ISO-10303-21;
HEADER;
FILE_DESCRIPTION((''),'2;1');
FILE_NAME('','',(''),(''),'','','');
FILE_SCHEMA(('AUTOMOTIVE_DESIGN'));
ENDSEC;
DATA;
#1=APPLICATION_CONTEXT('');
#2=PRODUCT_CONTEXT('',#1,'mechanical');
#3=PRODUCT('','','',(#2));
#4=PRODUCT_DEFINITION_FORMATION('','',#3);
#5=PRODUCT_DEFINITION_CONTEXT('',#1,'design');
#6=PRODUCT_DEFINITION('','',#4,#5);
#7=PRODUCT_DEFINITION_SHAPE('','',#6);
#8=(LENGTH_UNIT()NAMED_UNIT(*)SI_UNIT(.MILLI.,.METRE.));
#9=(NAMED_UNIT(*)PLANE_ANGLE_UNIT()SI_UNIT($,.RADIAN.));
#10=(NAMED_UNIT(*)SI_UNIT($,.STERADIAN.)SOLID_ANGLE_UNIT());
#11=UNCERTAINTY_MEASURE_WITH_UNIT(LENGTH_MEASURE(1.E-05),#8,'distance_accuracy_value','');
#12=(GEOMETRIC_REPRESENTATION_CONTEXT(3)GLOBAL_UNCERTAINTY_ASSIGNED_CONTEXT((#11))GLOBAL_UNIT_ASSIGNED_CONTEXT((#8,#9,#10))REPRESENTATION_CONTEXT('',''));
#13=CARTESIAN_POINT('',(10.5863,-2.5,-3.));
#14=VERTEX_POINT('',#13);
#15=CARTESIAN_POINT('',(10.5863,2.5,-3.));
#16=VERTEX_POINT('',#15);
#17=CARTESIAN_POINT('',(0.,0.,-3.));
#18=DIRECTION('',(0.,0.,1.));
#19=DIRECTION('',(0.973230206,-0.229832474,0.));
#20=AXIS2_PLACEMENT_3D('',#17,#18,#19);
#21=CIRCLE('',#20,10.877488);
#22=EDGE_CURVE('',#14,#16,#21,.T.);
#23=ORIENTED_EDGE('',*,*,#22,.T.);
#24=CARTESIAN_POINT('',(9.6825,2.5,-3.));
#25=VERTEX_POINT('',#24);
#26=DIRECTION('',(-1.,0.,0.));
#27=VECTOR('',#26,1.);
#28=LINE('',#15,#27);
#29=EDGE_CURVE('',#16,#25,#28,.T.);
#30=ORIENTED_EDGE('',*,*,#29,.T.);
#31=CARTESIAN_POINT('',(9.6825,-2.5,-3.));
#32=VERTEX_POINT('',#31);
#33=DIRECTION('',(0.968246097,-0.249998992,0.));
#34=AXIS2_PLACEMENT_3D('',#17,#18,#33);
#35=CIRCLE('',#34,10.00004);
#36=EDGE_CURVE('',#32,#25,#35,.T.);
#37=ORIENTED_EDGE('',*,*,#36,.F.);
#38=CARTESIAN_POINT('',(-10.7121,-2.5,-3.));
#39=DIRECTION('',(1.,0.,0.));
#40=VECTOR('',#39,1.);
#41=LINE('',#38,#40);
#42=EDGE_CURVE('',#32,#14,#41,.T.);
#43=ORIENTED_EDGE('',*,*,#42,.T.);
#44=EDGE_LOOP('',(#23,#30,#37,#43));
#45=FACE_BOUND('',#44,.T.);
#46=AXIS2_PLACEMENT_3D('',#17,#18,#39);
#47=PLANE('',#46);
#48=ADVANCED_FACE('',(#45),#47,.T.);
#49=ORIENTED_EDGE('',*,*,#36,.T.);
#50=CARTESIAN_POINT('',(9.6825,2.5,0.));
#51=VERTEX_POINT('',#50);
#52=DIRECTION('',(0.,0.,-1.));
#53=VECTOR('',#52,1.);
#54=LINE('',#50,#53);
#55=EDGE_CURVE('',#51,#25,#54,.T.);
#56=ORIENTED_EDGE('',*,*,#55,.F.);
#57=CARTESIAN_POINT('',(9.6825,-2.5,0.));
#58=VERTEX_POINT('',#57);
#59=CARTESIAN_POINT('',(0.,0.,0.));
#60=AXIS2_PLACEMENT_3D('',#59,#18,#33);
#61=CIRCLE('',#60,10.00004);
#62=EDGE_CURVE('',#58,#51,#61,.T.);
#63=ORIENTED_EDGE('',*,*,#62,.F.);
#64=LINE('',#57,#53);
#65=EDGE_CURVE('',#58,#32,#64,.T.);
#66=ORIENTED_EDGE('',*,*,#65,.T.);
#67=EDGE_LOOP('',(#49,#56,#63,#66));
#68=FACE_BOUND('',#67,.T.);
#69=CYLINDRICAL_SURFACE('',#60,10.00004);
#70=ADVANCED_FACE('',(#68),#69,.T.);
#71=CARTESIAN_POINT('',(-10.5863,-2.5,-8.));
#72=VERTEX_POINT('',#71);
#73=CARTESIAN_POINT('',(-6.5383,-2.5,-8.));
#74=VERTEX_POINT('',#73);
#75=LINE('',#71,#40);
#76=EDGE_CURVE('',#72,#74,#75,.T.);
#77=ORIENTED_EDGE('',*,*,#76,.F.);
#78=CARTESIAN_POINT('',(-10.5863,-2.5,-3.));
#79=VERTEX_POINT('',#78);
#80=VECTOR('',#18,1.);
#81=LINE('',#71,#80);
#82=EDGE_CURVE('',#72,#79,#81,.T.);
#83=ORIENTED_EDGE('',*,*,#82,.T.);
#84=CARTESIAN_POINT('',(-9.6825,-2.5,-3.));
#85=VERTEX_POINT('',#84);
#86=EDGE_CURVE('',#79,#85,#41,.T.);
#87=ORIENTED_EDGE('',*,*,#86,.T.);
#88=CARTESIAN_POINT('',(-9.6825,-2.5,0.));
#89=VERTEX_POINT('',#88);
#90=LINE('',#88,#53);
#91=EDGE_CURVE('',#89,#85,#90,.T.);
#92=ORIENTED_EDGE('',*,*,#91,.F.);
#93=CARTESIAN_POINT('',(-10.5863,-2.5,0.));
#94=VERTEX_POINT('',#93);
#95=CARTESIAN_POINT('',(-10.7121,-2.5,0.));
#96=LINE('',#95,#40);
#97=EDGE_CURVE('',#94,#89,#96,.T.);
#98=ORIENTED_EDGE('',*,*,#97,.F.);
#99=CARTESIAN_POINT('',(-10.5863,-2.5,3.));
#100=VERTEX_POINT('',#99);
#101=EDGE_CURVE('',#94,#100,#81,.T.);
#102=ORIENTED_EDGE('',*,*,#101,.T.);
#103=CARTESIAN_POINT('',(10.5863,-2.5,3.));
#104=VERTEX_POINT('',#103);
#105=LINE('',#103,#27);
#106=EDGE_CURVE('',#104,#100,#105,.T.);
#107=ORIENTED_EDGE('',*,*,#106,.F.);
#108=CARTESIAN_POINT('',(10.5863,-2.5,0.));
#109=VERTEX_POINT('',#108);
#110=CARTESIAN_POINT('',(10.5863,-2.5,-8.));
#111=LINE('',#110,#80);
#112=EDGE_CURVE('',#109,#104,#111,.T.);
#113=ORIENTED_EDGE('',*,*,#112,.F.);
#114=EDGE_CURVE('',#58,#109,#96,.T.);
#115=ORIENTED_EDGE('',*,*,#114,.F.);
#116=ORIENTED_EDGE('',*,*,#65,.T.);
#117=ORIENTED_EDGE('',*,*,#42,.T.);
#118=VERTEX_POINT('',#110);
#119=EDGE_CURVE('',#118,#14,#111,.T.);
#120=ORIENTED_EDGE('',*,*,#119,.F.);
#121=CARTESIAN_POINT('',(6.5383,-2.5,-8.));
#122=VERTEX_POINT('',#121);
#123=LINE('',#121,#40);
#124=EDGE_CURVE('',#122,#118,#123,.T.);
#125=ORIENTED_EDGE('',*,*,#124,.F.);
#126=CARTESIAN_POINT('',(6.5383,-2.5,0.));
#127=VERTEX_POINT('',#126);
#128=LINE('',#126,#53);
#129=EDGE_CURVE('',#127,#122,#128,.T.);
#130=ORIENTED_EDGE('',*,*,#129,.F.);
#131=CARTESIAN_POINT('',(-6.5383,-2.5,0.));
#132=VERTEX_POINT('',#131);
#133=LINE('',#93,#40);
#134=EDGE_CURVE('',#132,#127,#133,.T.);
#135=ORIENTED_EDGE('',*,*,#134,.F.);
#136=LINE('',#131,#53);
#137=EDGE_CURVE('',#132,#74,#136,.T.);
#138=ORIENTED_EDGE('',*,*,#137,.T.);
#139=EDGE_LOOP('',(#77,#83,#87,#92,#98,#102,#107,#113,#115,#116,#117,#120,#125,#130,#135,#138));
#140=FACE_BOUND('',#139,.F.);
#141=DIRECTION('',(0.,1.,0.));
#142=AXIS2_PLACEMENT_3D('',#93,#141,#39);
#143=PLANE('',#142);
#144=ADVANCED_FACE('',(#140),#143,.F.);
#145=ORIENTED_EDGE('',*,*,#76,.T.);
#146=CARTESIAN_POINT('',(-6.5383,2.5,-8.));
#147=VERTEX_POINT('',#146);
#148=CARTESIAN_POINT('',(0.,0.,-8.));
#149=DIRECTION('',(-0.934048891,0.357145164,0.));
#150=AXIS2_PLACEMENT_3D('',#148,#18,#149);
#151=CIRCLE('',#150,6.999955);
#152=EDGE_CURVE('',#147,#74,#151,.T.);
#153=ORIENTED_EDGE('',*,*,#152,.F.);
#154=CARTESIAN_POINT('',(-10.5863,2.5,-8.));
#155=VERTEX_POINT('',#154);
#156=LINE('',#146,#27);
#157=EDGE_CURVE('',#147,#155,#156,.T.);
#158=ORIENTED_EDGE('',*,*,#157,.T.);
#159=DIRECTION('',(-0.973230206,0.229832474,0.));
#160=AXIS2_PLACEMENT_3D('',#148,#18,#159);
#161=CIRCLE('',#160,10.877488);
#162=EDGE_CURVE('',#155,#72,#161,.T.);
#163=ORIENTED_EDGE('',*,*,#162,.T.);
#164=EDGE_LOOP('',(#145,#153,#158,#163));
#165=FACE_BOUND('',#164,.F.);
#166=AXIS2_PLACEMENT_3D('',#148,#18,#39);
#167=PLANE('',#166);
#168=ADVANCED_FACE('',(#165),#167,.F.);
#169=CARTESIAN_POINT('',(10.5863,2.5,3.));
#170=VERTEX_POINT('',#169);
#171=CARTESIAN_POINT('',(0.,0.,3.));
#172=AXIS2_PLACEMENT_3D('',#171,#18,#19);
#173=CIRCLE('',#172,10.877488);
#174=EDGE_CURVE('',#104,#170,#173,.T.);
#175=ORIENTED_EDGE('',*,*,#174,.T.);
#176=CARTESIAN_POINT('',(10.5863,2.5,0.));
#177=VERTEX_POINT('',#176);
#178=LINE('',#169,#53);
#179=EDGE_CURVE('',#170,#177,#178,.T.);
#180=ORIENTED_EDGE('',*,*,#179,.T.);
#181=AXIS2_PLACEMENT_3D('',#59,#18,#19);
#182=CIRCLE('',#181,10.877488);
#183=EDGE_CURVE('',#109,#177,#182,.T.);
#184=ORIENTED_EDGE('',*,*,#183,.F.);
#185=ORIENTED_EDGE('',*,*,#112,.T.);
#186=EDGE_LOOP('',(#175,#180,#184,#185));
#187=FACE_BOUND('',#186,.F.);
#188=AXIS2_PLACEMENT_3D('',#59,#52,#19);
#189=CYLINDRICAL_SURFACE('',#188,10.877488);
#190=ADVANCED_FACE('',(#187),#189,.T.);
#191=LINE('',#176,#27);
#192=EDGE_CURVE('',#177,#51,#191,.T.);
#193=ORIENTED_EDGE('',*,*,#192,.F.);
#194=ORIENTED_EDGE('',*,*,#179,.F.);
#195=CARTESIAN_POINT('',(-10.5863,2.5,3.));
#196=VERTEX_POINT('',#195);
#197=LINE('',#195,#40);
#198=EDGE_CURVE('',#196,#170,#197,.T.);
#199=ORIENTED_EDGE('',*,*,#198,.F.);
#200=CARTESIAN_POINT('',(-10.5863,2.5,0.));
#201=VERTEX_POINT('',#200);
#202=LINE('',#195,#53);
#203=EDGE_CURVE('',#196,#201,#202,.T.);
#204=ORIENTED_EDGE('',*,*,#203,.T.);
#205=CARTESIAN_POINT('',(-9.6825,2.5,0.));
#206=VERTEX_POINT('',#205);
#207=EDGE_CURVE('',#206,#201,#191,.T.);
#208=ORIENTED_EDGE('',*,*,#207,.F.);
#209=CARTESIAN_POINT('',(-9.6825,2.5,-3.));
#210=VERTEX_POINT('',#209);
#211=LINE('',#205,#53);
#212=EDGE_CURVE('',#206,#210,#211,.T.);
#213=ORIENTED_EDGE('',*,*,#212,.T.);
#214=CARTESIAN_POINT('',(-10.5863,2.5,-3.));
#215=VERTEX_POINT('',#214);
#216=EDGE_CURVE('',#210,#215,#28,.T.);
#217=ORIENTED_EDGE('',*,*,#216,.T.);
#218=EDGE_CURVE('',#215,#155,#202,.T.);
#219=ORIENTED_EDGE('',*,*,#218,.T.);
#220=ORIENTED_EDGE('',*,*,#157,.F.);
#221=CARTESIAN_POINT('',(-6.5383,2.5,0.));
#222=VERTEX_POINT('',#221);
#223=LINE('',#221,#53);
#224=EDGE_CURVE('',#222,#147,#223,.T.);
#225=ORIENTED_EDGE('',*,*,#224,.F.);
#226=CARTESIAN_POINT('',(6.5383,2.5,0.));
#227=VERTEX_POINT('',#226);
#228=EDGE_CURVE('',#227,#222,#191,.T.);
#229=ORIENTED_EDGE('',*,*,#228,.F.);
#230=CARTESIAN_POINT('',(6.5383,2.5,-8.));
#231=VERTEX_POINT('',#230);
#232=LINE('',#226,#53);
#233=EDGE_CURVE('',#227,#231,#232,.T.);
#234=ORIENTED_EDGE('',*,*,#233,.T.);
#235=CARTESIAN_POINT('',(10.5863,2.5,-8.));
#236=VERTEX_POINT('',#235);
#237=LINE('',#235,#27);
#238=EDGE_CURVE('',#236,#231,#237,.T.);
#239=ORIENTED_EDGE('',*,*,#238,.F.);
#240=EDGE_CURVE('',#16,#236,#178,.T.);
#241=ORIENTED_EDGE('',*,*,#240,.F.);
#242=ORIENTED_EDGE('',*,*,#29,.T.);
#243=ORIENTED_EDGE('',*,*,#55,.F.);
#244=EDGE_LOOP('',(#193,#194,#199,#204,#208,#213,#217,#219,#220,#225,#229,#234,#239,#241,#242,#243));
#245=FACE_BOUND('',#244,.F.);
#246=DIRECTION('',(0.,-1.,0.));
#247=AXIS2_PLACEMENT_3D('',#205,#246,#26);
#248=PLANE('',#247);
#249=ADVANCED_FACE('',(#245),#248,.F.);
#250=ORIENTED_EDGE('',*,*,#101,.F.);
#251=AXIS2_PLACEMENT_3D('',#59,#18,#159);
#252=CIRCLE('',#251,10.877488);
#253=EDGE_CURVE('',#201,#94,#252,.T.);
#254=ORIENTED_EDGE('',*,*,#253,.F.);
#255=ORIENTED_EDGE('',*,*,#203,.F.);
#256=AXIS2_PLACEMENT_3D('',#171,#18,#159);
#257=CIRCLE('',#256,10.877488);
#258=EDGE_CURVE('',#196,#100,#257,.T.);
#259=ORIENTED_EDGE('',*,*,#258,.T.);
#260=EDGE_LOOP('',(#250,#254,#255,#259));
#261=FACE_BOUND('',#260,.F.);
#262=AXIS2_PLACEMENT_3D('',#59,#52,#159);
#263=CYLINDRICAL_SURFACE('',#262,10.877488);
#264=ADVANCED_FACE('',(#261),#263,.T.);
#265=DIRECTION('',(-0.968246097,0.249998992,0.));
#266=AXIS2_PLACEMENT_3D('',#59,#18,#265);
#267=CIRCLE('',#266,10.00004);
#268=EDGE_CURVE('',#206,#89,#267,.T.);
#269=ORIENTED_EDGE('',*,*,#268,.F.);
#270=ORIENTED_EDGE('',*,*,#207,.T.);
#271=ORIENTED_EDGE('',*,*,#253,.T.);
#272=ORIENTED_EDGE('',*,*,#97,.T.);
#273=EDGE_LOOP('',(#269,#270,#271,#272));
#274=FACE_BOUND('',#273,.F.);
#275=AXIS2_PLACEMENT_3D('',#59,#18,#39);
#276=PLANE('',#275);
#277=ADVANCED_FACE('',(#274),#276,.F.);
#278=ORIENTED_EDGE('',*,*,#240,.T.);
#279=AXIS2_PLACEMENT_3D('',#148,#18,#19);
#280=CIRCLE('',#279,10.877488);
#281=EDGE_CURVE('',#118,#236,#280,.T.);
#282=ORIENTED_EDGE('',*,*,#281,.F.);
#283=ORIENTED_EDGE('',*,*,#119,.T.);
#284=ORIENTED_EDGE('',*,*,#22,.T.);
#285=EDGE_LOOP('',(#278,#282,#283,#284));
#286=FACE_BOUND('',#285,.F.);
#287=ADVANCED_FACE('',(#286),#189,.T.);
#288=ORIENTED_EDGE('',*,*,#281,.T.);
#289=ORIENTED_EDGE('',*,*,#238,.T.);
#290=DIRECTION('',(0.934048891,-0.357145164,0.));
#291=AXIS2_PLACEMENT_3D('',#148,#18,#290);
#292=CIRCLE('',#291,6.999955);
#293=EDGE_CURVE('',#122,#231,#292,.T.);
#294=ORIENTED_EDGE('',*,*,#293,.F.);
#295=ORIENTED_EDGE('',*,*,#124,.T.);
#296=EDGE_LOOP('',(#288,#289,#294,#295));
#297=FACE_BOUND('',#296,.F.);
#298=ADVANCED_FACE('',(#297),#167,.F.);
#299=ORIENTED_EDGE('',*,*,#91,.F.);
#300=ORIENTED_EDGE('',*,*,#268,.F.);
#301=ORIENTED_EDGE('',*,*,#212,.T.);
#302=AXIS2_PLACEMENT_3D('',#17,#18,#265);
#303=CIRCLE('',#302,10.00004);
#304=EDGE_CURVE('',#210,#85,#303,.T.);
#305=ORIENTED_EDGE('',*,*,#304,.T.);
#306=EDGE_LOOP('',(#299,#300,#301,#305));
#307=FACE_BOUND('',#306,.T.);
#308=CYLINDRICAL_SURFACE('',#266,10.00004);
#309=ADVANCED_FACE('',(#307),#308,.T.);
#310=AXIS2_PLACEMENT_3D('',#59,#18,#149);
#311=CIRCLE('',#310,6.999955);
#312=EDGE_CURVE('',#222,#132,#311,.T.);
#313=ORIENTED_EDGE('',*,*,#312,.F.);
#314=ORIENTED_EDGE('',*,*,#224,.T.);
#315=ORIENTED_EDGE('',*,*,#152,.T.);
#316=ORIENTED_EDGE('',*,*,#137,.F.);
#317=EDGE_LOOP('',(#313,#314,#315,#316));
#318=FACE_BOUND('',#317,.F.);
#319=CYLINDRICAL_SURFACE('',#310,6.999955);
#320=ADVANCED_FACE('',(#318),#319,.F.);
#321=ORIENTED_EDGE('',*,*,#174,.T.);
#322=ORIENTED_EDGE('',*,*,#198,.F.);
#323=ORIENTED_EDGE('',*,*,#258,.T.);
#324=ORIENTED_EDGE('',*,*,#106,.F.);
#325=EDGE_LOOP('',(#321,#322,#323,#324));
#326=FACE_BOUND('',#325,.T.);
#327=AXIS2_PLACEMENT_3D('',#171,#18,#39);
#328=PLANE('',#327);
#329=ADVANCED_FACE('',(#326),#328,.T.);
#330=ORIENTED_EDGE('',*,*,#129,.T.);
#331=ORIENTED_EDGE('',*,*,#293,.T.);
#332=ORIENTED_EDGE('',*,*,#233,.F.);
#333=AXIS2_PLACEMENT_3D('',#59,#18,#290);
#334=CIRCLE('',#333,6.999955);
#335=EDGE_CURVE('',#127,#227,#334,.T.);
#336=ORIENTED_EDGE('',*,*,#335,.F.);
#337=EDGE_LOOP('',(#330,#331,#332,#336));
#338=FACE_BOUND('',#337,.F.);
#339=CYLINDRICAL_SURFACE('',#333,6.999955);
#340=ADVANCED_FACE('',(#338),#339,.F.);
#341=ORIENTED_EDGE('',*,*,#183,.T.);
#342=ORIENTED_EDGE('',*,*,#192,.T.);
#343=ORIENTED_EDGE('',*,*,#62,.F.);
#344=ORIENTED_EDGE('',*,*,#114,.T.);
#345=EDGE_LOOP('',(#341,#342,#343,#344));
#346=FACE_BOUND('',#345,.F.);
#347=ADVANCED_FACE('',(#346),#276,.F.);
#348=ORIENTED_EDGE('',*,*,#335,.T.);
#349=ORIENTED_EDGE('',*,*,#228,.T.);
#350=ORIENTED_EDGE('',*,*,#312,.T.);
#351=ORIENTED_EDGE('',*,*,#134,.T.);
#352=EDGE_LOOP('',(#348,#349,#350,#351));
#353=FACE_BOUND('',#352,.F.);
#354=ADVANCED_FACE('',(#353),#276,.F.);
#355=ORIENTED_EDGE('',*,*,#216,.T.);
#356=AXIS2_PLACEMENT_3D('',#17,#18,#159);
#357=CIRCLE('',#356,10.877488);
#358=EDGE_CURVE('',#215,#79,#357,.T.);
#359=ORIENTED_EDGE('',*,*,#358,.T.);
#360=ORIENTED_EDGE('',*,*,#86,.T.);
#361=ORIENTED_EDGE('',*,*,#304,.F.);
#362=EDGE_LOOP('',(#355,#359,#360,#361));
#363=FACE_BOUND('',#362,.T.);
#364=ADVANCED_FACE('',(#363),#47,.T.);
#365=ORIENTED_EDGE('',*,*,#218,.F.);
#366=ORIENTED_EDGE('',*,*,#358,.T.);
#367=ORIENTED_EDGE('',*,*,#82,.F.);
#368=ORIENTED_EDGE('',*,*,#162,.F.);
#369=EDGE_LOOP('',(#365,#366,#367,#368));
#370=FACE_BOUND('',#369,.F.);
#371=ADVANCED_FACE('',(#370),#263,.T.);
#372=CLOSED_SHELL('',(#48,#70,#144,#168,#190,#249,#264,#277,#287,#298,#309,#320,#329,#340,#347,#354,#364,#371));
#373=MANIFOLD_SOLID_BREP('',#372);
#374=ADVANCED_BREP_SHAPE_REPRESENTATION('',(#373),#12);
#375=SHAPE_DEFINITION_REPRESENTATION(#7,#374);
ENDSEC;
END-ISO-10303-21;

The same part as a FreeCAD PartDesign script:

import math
import FreeCAD as App
import Part
import Sketcher

V = App.Vector

doc = App.newDocument("Part")
body = doc.addObject("PartDesign::Body", "Body")

# Sketch on XY plane
sketch1 = body.newObject("Sketcher::SketchObject", "Sketch")
sketch1.AttachmentSupport = (doc.getObject("XY_Plane"), [""])
sketch1.MapMode = "FlatFace"
sketch1.addGeometry([
    Part.ArcOfCircle(Part.Circle(V(0, 0, 0), V(0, 0, 1), 11), math.radians(167), math.radians(193)),
    Part.LineSegment(V(-11, -2, 0), V(11, -2, 0)),
    Part.ArcOfCircle(Part.Circle(V(0, 0, 0), V(0, 0, 1), 11), math.radians(-13), math.radians(13)),
    Part.LineSegment(V(11, 2, 0), V(-11, 2, 0)),
], False)
sketch1.addConstraint([
    Sketcher.Constraint("Coincident", 0, 2, 1, 1),
    Sketcher.Constraint("Coincident", 1, 2, 2, 1),
    Sketcher.Constraint("Coincident", 2, 2, 3, 1),
    Sketcher.Constraint("Coincident", 3, 2, 0, 1),
    Sketcher.Constraint("Horizontal", 1),
    Sketcher.Constraint("Horizontal", 3),
    Sketcher.Constraint("Coincident", 0, 3, -1, 1),
    Sketcher.Constraint("Coincident", 2, 3, -1, 1),
    Sketcher.Constraint("Equal", 0, 2),
    Sketcher.Constraint("Vertical", 1, 2, 2, 2),
    Sketcher.Constraint("DistanceY", 1, 2, 2, 2, 5.0),
    Sketcher.Constraint("Radius", 0, 10.8775),
])
pad1 = body.newObject("PartDesign::Pad", "Pad")
pad1.Profile = sketch1
pad1.Length = 3

# Sketch on XY plane
sketch2 = body.newObject("Sketcher::SketchObject", "Sketch001")
sketch2.AttachmentSupport = (doc.getObject("XY_Plane"), [""])
sketch2.MapMode = "FlatFace"
sketch2.addGeometry([
    Part.ArcOfCircle(Part.Circle(V(0, 0, 0), V(0, 0, 1), 10.9), math.radians(167), math.radians(193)),  # 0
    Part.LineSegment(V(-10.6, -2.5, 0), V(-6.5, -2.5, 0)),  # 1
    Part.ArcOfCircle(Part.Circle(V(0, 0, 0), V(0, 0, 1), 7), math.radians(159), math.radians(201)),  # 2
    Part.LineSegment(V(-6.5, 2.5, 0), V(-10.6, 2.5, 0)),  # 3
    Part.ArcOfCircle(Part.Circle(V(0, 0, 0), V(0, 0, 1), 7), math.radians(-21), math.radians(21)),  # 4
    Part.LineSegment(V(6.5, -2.5, 0), V(10.6, -2.5, 0)),  # 5
    Part.ArcOfCircle(Part.Circle(V(0, 0, 0), V(0, 0, 1), 10.9), math.radians(-13), math.radians(13)),  # 6
    Part.LineSegment(V(10.6, 2.5, 0), V(6.5, 2.5, 0)),  # 7
], False)
sketch2.addConstraint([
    Sketcher.Constraint("Coincident", 0, 2, 1, 1),
    Sketcher.Constraint("Coincident", 1, 2, 2, 2),
    Sketcher.Constraint("Coincident", 2, 1, 3, 1),
    Sketcher.Constraint("Coincident", 3, 2, 0, 1),
    Sketcher.Constraint("Coincident", 4, 1, 5, 1),
    Sketcher.Constraint("Coincident", 5, 2, 6, 1),
    Sketcher.Constraint("Coincident", 6, 2, 7, 1),
    Sketcher.Constraint("Coincident", 7, 2, 4, 2),
    Sketcher.Constraint("Horizontal", 1),
    Sketcher.Constraint("Horizontal", 3),
    Sketcher.Constraint("Horizontal", 5),
    Sketcher.Constraint("Horizontal", 7),
    Sketcher.Constraint("Coincident", 0, 3, -1, 1),
    Sketcher.Constraint("Coincident", 2, 3, -1, 1),
    Sketcher.Constraint("Coincident", 4, 3, -1, 1),
    Sketcher.Constraint("Coincident", 6, 3, -1, 1),
    Sketcher.Constraint("Equal", 2, 4),
    Sketcher.Constraint("Equal", 0, 6),
    Sketcher.Constraint("Horizontal", 1, 2, 4, 1),
    Sketcher.Constraint("Horizontal", 3, 2, 6, 2),
    Sketcher.Constraint("Vertical", 1, 2, 2, 1),
    Sketcher.Constraint("Radius", 2, 7.0),
    Sketcher.Constraint("DistanceY", 1, 2, 2, 1, 5.0),
    Sketcher.Constraint("Radius", 0, 10.8775),
])
pad2 = body.newObject("PartDesign::Pad", "Pad001")
pad2.Profile = sketch2
pad2.Length = 8
pad2.Reversed = True

# Sketch on XY plane
sketch3 = body.newObject("Sketcher::SketchObject", "Sketch002")
sketch3.AttachmentSupport = (doc.getObject("XY_Plane"), [""])
sketch3.MapMode = "FlatFace"
sketch3.addGeometry([
    Part.ArcOfCircle(Part.Circle(V(0, 0, 0), V(0, 0, 1), 10.9), math.radians(167), math.radians(193)),  # 0
    Part.LineSegment(V(-10.6, -2.5, 0), V(-9.7, -2.5, 0)),  # 1
    Part.ArcOfCircle(Part.Circle(V(0, 0, 0), V(0, 0, 1), 10), math.radians(166), math.radians(194)),  # 2
    Part.LineSegment(V(-9.7, 2.5, 0), V(-10.6, 2.5, 0)),  # 3
    Part.ArcOfCircle(Part.Circle(V(0, 0, 0), V(0, 0, 1), 10), math.radians(-14), math.radians(14)),  # 4
    Part.LineSegment(V(9.7, -2.5, 0), V(10.6, -2.5, 0)),  # 5
    Part.ArcOfCircle(Part.Circle(V(0, 0, 0), V(0, 0, 1), 10.9), math.radians(-13), math.radians(13)),  # 6
    Part.LineSegment(V(10.6, 2.5, 0), V(9.7, 2.5, 0)),  # 7
], False)
sketch3.addConstraint([
    Sketcher.Constraint("Coincident", 0, 2, 1, 1),
    Sketcher.Constraint("Coincident", 1, 2, 2, 2),
    Sketcher.Constraint("Coincident", 2, 1, 3, 1),
    Sketcher.Constraint("Coincident", 3, 2, 0, 1),
    Sketcher.Constraint("Coincident", 4, 1, 5, 1),
    Sketcher.Constraint("Coincident", 5, 2, 6, 1),
    Sketcher.Constraint("Coincident", 6, 2, 7, 1),
    Sketcher.Constraint("Coincident", 7, 2, 4, 2),
    Sketcher.Constraint("Horizontal", 1),
    Sketcher.Constraint("Horizontal", 3),
    Sketcher.Constraint("Horizontal", 5),
    Sketcher.Constraint("Horizontal", 7),
    Sketcher.Constraint("Coincident", 0, 3, -1, 1),
    Sketcher.Constraint("Coincident", 2, 3, -1, 1),
    Sketcher.Constraint("Coincident", 4, 3, -1, 1),
    Sketcher.Constraint("Coincident", 6, 3, -1, 1),
    Sketcher.Constraint("Equal", 2, 4),
    Sketcher.Constraint("Equal", 0, 6),
    Sketcher.Constraint("Horizontal", 1, 2, 4, 1),
    Sketcher.Constraint("Horizontal", 3, 2, 6, 2),
    Sketcher.Constraint("Vertical", 1, 2, 2, 1),
    Sketcher.Constraint("Radius", 2, 10.0),
    Sketcher.Constraint("DistanceY", 1, 2, 2, 1, 5.0),
    Sketcher.Constraint("Radius", 0, 10.8775),
])
pocket1 = body.newObject("PartDesign::Pocket", "Pocket")
pocket1.Profile = sketch3
pocket1.Length = 3

doc.recompute()
